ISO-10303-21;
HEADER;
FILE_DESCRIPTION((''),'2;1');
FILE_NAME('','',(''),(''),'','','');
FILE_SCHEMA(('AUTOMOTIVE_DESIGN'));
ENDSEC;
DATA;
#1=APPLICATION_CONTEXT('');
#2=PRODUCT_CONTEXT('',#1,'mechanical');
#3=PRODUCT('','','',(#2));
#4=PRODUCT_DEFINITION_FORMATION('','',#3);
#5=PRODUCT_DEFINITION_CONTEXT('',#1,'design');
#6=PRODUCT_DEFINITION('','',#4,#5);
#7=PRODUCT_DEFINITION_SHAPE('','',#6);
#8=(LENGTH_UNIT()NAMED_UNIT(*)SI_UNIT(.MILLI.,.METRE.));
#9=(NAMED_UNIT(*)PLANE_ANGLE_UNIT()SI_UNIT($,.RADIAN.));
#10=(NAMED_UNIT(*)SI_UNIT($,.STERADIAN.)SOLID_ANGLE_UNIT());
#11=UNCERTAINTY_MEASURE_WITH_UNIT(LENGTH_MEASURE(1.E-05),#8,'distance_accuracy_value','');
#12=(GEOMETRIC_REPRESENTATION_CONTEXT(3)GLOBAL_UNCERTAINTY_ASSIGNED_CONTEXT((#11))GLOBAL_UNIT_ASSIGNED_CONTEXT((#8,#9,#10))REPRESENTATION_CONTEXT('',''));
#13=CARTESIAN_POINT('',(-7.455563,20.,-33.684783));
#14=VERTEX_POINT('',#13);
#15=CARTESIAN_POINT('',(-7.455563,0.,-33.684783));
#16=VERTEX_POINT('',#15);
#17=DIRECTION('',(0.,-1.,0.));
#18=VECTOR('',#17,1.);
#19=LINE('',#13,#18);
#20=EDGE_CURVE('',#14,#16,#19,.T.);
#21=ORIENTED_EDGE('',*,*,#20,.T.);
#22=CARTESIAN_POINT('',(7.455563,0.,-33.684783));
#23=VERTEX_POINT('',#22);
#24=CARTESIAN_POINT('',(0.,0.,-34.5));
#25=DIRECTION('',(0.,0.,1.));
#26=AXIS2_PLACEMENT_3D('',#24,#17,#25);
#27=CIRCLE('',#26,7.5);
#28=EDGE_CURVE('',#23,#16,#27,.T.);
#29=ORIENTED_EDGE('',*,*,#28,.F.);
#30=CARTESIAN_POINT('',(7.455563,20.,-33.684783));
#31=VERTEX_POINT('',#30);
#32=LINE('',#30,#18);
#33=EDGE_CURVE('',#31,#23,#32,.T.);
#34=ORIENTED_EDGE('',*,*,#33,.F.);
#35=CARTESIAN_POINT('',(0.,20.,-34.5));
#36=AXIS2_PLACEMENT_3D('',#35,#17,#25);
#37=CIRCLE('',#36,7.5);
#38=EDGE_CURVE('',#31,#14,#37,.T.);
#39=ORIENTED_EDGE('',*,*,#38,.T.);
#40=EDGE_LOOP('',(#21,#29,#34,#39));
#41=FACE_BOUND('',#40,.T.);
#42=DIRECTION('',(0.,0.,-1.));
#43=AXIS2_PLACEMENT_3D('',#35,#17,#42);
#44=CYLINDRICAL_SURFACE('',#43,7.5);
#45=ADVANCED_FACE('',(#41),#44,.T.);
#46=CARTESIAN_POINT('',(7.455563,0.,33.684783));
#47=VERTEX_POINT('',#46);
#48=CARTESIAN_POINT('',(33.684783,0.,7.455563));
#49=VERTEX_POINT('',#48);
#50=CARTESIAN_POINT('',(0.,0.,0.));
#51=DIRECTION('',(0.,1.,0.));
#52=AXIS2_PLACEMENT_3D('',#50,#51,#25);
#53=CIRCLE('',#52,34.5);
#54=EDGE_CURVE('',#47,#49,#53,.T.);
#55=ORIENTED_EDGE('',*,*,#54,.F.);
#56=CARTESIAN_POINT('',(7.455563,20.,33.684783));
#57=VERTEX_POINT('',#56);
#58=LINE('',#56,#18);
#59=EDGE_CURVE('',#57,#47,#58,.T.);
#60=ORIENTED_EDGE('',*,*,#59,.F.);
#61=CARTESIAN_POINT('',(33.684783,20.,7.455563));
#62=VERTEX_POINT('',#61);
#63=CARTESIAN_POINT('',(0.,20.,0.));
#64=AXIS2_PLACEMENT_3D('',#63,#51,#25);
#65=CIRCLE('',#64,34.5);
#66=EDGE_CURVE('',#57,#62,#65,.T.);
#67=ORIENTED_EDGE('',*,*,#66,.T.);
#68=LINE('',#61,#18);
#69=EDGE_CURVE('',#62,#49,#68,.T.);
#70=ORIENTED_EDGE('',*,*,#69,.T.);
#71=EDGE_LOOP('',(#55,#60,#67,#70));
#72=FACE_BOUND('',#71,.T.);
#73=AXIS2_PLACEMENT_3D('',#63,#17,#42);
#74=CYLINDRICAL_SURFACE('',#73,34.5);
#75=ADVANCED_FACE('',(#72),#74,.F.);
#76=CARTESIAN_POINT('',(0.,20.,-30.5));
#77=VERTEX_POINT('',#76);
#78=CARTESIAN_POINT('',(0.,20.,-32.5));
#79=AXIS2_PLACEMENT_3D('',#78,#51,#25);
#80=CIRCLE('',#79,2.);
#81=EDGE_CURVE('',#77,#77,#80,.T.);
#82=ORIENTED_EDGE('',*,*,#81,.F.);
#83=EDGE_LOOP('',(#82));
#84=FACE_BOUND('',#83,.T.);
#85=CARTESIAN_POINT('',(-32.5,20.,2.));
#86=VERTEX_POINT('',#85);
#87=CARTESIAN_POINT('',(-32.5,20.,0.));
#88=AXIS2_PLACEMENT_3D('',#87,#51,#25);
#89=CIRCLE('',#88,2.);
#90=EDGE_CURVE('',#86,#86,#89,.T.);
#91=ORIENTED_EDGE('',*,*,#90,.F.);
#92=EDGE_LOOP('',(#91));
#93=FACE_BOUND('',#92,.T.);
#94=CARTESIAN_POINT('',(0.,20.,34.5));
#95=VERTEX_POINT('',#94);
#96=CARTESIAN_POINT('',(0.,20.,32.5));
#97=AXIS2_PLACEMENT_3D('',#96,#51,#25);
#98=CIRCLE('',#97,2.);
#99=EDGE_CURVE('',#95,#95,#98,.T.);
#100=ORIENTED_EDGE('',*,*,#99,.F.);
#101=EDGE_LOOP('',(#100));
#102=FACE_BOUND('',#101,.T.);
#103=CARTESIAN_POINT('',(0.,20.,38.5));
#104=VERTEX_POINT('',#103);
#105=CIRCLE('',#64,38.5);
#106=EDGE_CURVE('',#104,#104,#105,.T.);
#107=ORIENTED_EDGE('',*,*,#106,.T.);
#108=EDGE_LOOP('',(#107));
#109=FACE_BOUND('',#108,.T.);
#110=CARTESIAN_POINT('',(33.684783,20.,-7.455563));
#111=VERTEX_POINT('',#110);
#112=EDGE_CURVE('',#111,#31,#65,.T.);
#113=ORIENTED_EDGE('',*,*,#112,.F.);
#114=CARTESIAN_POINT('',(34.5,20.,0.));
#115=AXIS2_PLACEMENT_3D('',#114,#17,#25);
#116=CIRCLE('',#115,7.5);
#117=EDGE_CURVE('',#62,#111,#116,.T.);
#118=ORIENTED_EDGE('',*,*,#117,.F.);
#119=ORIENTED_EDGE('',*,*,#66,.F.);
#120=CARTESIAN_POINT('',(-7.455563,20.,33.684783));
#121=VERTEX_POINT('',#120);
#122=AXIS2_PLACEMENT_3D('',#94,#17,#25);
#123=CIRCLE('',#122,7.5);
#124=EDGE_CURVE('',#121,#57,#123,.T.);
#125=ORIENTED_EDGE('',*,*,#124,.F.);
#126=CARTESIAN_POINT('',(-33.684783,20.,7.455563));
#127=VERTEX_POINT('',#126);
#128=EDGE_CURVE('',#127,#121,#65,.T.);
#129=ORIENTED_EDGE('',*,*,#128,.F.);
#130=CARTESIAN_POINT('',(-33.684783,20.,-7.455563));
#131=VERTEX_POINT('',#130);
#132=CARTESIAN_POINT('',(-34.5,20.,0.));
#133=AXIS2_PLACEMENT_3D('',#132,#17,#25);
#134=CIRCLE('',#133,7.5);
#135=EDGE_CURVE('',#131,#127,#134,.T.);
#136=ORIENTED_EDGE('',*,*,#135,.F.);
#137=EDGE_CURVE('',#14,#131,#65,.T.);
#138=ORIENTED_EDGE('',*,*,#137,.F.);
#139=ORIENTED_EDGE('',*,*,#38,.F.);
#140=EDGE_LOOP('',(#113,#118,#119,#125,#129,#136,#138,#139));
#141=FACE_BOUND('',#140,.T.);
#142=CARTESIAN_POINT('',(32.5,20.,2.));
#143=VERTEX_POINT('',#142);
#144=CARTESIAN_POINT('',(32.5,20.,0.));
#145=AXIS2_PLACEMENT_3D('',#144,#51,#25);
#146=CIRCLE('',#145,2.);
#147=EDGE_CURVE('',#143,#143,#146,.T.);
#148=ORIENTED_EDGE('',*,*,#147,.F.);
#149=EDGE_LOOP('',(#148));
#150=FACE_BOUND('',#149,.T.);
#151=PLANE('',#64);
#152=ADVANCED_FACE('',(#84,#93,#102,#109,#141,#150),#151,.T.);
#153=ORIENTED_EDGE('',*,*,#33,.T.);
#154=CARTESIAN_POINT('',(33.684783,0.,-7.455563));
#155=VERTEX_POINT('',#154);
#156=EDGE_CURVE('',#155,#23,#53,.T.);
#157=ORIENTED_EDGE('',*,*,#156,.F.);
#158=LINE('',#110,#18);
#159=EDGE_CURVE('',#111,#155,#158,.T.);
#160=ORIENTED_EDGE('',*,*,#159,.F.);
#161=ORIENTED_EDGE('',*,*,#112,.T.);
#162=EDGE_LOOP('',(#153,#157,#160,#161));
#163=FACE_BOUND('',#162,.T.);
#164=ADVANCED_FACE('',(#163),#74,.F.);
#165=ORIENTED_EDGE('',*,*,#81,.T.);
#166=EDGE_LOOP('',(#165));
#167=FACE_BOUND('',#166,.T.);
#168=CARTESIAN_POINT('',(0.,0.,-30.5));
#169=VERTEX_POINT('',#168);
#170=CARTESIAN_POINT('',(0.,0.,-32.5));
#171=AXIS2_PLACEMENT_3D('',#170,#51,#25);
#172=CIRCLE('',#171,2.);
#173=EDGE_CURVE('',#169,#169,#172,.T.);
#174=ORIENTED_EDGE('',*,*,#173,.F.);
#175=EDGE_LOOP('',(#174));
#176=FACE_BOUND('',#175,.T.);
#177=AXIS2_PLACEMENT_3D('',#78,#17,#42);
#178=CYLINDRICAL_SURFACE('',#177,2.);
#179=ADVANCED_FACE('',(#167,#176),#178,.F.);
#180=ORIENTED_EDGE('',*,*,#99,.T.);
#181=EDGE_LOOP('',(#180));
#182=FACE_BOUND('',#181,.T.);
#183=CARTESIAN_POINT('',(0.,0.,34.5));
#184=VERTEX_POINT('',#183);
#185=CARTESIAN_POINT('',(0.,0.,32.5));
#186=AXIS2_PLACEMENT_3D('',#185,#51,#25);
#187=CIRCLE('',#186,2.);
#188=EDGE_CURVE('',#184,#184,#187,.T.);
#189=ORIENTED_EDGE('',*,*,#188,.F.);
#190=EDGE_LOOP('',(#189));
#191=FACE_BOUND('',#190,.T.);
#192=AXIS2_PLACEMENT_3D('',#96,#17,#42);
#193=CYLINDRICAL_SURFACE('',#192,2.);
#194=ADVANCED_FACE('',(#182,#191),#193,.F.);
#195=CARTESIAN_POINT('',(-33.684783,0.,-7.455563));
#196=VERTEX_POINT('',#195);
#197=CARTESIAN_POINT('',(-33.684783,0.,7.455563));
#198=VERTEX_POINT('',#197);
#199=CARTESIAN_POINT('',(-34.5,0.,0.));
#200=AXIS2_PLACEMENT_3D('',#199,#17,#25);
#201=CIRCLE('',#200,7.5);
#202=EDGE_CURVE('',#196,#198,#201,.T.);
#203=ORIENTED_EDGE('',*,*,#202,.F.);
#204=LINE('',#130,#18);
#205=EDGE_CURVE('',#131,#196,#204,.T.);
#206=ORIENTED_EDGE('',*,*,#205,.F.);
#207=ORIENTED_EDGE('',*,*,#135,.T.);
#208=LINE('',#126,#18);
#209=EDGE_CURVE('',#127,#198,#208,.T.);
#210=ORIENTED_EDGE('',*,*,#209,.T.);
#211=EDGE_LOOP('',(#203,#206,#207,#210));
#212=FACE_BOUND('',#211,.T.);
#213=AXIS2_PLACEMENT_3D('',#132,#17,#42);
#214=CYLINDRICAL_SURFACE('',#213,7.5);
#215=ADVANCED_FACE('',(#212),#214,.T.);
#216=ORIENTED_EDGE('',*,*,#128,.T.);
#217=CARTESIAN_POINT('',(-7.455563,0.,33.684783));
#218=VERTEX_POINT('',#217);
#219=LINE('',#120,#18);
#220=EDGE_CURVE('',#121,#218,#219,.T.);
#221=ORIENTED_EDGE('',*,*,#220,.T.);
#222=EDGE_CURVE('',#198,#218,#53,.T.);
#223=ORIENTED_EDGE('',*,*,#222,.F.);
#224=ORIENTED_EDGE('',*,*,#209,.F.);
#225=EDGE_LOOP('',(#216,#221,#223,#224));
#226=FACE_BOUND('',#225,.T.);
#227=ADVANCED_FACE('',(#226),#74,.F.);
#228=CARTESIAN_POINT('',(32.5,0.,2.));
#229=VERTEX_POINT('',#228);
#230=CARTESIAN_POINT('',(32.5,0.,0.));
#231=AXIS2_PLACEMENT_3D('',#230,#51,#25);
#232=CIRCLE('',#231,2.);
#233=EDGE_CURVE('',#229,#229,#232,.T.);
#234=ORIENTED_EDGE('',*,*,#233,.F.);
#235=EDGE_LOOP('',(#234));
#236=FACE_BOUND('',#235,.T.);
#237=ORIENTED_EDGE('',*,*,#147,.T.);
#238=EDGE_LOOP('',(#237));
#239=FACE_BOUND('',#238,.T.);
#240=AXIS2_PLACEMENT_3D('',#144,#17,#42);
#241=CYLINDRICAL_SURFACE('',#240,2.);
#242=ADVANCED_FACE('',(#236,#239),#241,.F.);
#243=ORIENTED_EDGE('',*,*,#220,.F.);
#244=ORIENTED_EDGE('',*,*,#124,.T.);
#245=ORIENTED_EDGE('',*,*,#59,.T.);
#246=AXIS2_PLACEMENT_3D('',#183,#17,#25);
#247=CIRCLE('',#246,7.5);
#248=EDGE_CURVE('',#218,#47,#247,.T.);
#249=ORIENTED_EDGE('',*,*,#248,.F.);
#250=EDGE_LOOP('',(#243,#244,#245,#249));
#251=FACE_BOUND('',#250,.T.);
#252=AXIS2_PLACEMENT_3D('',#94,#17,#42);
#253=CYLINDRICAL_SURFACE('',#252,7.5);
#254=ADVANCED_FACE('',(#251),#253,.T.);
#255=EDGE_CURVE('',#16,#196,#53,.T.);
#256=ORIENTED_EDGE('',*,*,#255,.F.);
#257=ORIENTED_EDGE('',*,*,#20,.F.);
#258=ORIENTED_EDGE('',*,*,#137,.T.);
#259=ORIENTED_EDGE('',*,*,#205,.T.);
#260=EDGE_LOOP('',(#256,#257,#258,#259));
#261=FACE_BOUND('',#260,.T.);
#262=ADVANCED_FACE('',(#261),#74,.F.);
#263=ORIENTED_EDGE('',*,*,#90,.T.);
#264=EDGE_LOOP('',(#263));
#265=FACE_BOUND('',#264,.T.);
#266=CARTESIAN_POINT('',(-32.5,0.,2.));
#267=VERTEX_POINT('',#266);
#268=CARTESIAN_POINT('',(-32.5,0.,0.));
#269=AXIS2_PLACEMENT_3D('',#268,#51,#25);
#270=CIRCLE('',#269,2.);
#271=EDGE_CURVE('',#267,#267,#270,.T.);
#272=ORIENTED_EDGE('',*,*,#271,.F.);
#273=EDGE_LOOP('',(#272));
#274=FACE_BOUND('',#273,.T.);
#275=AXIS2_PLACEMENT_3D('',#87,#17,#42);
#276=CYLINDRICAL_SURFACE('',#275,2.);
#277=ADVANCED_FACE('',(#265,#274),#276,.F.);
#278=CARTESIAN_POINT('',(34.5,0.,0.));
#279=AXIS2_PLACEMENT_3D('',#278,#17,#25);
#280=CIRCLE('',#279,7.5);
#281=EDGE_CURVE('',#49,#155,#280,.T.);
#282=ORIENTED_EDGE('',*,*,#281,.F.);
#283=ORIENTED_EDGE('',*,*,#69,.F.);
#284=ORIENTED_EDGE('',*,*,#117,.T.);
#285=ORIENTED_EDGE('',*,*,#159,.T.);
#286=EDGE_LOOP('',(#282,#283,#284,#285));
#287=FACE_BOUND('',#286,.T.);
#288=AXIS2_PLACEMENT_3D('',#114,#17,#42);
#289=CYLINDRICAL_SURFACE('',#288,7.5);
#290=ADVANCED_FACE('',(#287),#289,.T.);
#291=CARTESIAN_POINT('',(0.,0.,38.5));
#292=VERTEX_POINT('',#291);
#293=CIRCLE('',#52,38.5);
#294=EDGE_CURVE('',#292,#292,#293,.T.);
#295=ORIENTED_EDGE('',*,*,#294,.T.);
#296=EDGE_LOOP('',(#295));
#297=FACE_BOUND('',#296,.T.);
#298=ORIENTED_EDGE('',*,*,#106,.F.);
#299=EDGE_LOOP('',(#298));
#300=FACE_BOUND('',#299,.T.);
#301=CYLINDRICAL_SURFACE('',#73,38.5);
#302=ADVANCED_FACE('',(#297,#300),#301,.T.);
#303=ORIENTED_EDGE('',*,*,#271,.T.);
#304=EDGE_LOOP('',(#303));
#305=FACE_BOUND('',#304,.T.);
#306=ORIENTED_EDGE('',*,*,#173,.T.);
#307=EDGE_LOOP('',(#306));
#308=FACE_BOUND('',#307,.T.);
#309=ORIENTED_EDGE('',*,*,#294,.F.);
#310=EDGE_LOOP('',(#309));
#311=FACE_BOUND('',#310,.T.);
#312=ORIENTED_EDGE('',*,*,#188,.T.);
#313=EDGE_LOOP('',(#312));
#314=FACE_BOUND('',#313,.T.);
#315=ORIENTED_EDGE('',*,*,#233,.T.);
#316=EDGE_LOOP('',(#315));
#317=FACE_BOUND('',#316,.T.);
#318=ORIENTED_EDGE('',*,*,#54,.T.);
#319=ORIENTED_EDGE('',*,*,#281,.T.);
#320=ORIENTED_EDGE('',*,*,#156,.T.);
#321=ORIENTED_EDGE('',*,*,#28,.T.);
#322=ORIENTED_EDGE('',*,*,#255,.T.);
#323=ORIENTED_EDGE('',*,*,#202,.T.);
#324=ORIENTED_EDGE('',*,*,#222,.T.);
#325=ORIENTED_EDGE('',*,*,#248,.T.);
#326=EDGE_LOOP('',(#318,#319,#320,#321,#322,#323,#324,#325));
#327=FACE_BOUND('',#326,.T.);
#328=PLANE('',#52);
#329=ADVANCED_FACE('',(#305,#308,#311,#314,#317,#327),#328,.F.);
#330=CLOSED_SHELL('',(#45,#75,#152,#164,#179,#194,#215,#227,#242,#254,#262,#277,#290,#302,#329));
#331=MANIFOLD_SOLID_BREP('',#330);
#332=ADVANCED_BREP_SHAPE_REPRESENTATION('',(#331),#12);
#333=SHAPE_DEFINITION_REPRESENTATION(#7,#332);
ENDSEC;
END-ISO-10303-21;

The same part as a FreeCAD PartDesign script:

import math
import FreeCAD as App
import Part
import Sketcher
Q = App.Units.Quantity

doc = App.newDocument("Part")
body = doc.addObject("PartDesign::Body", "Body")

sketch1 = body.newObject("Sketcher::SketchObject", "Sketch")
sketch1.AttachmentSupport = (doc.getObject("XZ_Plane"), [""])
sketch1.MapMode = "FlatFace"
sketch1.addGeometry(Part.Circle(App.Vector(0, 0, 0), App.Vector(0, 0, 1), 38.5), False)
sketch1.addGeometry(Part.Circle(App.Vector(0, -32.5, 0), App.Vector(0, 0, 1), 2), False)
sketch1.addGeometry(Part.Circle(App.Vector(-32.5, 0, 0), App.Vector(0, 0, 1), 2), False)
sketch1.addGeometry(Part.Circle(App.Vector(32.5, 0, 0), App.Vector(0, 0, 1), 2), False)
sketch1.addGeometry(Part.ArcOfCircle(Part.Circle(App.Vector(0, 0, 0), App.Vector(0, 0, 1), 34.5), math.radians(102), math.radians(168)), False)
sketch1.addGeometry(Part.ArcOfCircle(Part.Circle(App.Vector(-34.5, 0, 0), App.Vector(0, 0, 1), 7.5), math.radians(-84), math.radians(84)), False)
sketch1.addGeometry(Part.ArcOfCircle(Part.Circle(App.Vector(0, 0, 0), App.Vector(0, 0, 1), 34.5), math.radians(-168), math.radians(-102)), False)
sketch1.addGeometry(Part.ArcOfCircle(Part.Circle(App.Vector(0, -34.5, 0), App.Vector(0, 0, 1), 7.5), math.radians(6), math.radians(174)), False)
sketch1.addGeometry(Part.ArcOfCircle(Part.Circle(App.Vector(0, 0, 0), App.Vector(0, 0, 1), 34.5), math.radians(-78), math.radians(-12)), False)
sketch1.addGeometry(Part.ArcOfCircle(Part.Circle(App.Vector(34.5, 0, 0), App.Vector(0, 0, 1), 7.5), math.radians(96), math.radians(264)), False)
sketch1.addGeometry(Part.ArcOfCircle(Part.Circle(App.Vector(0, 0, 0), App.Vector(0, 0, 1), 34.5), math.radians(12), math.radians(78)), False)
sketch1.addGeometry(Part.ArcOfCircle(Part.Circle(App.Vector(0, 34.5, 0), App.Vector(0, 0, 1), 7.5), math.radians(-174), math.radians(-6)), False)
sketch1.addGeometry(Part.Circle(App.Vector(0, 32.5, 0), App.Vector(0, 0, 1), 2), False)
sketch1.addConstraint(Sketcher.Constraint("Coincident", 4, 2, 5, 2))
sketch1.addConstraint(Sketcher.Constraint("Coincident", 5, 1, 6, 1))
sketch1.addConstraint(Sketcher.Constraint("Coincident", 6, 2, 7, 2))
sketch1.addConstraint(Sketcher.Constraint("Coincident", 7, 1, 8, 1))
sketch1.addConstraint(Sketcher.Constraint("Coincident", 8, 2, 9, 2))
sketch1.addConstraint(Sketcher.Constraint("Coincident", 9, 1, 10, 1))
sketch1.addConstraint(Sketcher.Constraint("Coincident", 10, 2, 11, 2))
sketch1.addConstraint(Sketcher.Constraint("Coincident", 11, 1, 4, 1))
sketch1.addConstraint(Sketcher.Constraint("Coincident", 0, 3, -1, 1))
sketch1.addConstraint(Sketcher.Constraint("Coincident", 4, 3, -1, 1))
sketch1.addConstraint(Sketcher.Constraint("Coincident", 6, 3, -1, 1))
sketch1.addConstraint(Sketcher.Constraint("Coincident", 8, 3, -1, 1))
sketch1.addConstraint(Sketcher.Constraint("Coincident", 10, 3, -1, 1))
sketch1.addConstraint(Sketcher.Constraint("Equal", 1, 2))
sketch1.addConstraint(Sketcher.Constraint("Equal", 2, 3))
sketch1.addConstraint(Sketcher.Constraint("Equal", 4, 6))
sketch1.addConstraint(Sketcher.Constraint("Equal", 5, 7))
sketch1.addConstraint(Sketcher.Constraint("Equal", 6, 8))
sketch1.addConstraint(Sketcher.Constraint("Equal", 7, 9))
sketch1.addConstraint(Sketcher.Constraint("Equal", 8, 10))
sketch1.addConstraint(Sketcher.Constraint("Equal", 9, 11))
sketch1.addConstraint(Sketcher.Constraint("Equal", 3, 12))
sketch1.addConstraint(Sketcher.Constraint("Symmetric", 2, 3, 3, 3, -1, 1))
sketch1.addConstraint(Sketcher.Constraint("Symmetric", 5, 3, 9, 3, -1, 1))
sketch1.addConstraint(Sketcher.Constraint("Symmetric", 7, 3, 11, 3, -1, 1))
sketch1.addConstraint(Sketcher.Constraint("Symmetric", 1, 3, 12, 3, -1, 1))
sketch1.addConstraint(Sketcher.Constraint("PointOnObject", 1, 3, -2))
sketch1.addConstraint(Sketcher.Constraint("PointOnObject", 2, 3, -1))
sketch1.addConstraint(Sketcher.Constraint("PointOnObject", 5, 3, -1))
sketch1.addConstraint(Sketcher.Constraint("PointOnObject", 7, 3, -2))
sketch1.addConstraint(Sketcher.Constraint("Diameter", 0, Q("77 mm")))
sketch1.addConstraint(Sketcher.Constraint("Diameter", 1, Q("4 mm")))
sketch1.addConstraint(Sketcher.Constraint("Radius", 4, Q("34.5 mm")))
sketch1.addConstraint(Sketcher.Constraint("Radius", 5, Q("7.5 mm")))
sketch1.addConstraint(Sketcher.Constraint("DistanceX", 2, 3, 3, 3, Q("65 mm")))
sketch1.addConstraint(Sketcher.Constraint("DistanceX", 5, 3, 2, 3, Q("2 mm")))
sketch1.addConstraint(Sketcher.Constraint("DistanceY", 7, 3, 1, 3, Q("2 mm")))
sketch1.addConstraint(Sketcher.Constraint("DistanceY", 1, 3, -1, 1, Q("32.5 mm")))
pad1 = body.newObject("PartDesign::Pad", "Pad")
pad1.Profile = sketch1
pad1.Length = 20
pad1.Reversed = True

doc.recompute()
